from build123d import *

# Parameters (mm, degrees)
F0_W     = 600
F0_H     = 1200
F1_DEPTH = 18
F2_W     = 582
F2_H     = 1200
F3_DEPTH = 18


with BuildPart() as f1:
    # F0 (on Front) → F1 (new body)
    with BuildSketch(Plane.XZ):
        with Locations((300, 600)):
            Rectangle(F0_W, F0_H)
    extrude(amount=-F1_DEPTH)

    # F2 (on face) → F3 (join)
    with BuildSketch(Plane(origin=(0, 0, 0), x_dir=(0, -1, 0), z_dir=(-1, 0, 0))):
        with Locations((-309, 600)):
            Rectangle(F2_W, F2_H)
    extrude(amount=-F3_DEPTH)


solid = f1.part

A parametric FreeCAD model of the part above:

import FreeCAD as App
import Part
import Sketcher
from FreeCAD import Vector


def add_polygon(sketch, points):
    """Adds a closed chain of lines whose ends are joined by coincident constraints."""
    first, n = sketch.GeometryCount, len(points)
    for a, b in zip(points, points[1:] + points[:1]):
        sketch.addGeometry(Part.LineSegment(App.Vector(*a, 0), App.Vector(*b, 0)), False)
    for i in range(n):
        sketch.addConstraint(Sketcher.Constraint("Coincident", first + i, 2, first + (i + 1) % n, 1))

doc = App.newDocument("Part")
body = doc.addObject("PartDesign::Body", "Body")

# Sketch on XZ plane
sketch1 = doc.addObject("Sketcher::SketchObject", "Sketch")
body.addObject(sketch1)
sketch1.AttachmentSupport = (doc.XZ_Plane, [""])
sketch1.MapMode = "FlatFace"
add_polygon(sketch1, [(0, 1200), (0, 0), (600, 0), (600, 1200)])  # lines 0-3
sketch1.addConstraint([
    Sketcher.Constraint("Vertical", 0),
    Sketcher.Constraint("Horizontal", 1),
    Sketcher.Constraint("Vertical", 2),
    Sketcher.Constraint("Horizontal", 3),
    Sketcher.Constraint("Coincident", 0, 2, -1, 1),
    Sketcher.Constraint("DistanceX", 1, 1, 1, 2, 600.0),
    Sketcher.Constraint("DistanceY", 0, 2, 0, 1, 1200.0),
])
pad1 = doc.addObject("PartDesign::Pad", "Pad")
body.addObject(pad1)
pad1.Profile = sketch1
pad1.Length = 18
pad1.Reversed = True

# Sketch on YZ plane
sketch2 = doc.addObject("Sketcher::SketchObject", "Sketch001")
body.addObject(sketch2)
sketch2.AttachmentSupport = (doc.YZ_Plane, [""])
sketch2.MapMode = "FlatFace"
add_polygon(sketch2, [(600, 1200), (600, 0), (18, 0), (18, 1200)])  # lines 0-3
sketch2.addConstraint([
    Sketcher.Constraint("Vertical", 0),
    Sketcher.Constraint("Horizontal", 1),
    Sketcher.Constraint("Vertical", 2),
    Sketcher.Constraint("Horizontal", 3),
    Sketcher.Constraint("PointOnObject", 0, 2, -1),
    Sketcher.Constraint("DistanceX", 1, 2, 1, 1, 582.0),
    Sketcher.Constraint("DistanceY", 0, 2, 0, 1, 1200.0),
    Sketcher.Constraint("DistanceX", -1, 1, 0, 2, 600.0),
])
pad2 = doc.addObject("PartDesign::Pad", "Pad001")
body.addObject(pad2)
pad2.Profile = sketch2
pad2.Length = 18

doc.recompute()
